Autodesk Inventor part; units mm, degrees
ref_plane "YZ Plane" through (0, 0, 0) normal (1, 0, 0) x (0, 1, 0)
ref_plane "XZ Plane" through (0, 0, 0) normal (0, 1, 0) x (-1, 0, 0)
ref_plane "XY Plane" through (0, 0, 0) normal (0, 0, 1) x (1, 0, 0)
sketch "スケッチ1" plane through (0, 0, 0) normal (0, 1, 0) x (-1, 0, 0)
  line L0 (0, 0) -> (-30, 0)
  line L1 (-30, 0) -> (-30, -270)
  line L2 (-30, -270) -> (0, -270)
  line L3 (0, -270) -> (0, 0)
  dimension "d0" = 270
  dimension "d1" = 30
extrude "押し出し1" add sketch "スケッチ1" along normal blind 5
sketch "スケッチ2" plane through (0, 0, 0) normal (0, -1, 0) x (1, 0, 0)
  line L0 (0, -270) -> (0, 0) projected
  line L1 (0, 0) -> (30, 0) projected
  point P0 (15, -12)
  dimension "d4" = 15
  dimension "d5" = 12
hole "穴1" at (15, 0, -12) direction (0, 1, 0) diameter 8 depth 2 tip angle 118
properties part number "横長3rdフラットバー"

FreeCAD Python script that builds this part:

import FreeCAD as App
import Part
import Sketcher
from FreeCAD import Vector
Q = App.Units.Quantity


def add_polygon(sketch, points):
    """Adds a closed chain of lines whose ends are joined by coincident constraints."""
    first, n = sketch.GeometryCount, len(points)
    for a, b in zip(points, points[1:] + points[:1]):
        sketch.addGeometry(Part.LineSegment(App.Vector(*a, 0), App.Vector(*b, 0)), False)
    for i in range(n):
        sketch.addConstraint(Sketcher.Constraint("Coincident", first + i, 2, first + (i + 1) % n, 1))

doc = App.newDocument("Part")
body = doc.addObject("PartDesign::Body", "Body")

sketch1 = body.newObject("Sketcher::SketchObject", "Sketch")
sketch1.AttachmentSupport = (doc.getObject("XZ_Plane"), [""])
sketch1.MapMode = "FlatFace"
add_polygon(sketch1, [(0, -270), (0, 0), (30, 0), (30, -270)])
sketch1.addConstraint([
    Sketcher.Constraint("Vertical", 0),
    Sketcher.Constraint("Horizontal", 1),
    Sketcher.Constraint("Vertical", 2),
    Sketcher.Constraint("Horizontal", 3),
    Sketcher.Constraint("Coincident", 0, 2, -1, 1),
    Sketcher.Constraint("DistanceX", 1, 1, 1, 2, Q("30 mm")),
    Sketcher.Constraint("DistanceY", 0, 1, 0, 2, Q("270 mm")),
])
pad1 = body.newObject("PartDesign::Pad", "Pad")
pad1.Profile = sketch1
pad1.Length = 5
pad1.Reversed = True

sketch2 = body.newObject("Sketcher::SketchObject", "Sketch001")
sketch2.AttachmentSupport = (doc.getObject("XZ_Plane"), [""])
sketch2.MapMode = "FlatFace"
sketch2.addGeometry(Part.Circle(Vector(15, -12, 0), Vector(0, 0, 1), 4), False)
sketch2.addConstraint([
    Sketcher.Constraint("Diameter", 0, Q("8 mm")),
    Sketcher.Constraint("DistanceX", -1, 1, 0, 3, Q("15 mm")),
    Sketcher.Constraint("DistanceY", 0, 3, -1, 1, Q("12 mm")),
])
doc.recompute()
hole = body.newObject("PartDesign::Hole", "Hole")
hole.Profile = sketch2
hole.ThreadType = "None"
hole.Diameter = 8
hole.DepthType = "Dimension"
hole.Depth = 2
hole.DrillPoint = "Angled"
hole.DrillPointAngle = 118

doc.recompute()
